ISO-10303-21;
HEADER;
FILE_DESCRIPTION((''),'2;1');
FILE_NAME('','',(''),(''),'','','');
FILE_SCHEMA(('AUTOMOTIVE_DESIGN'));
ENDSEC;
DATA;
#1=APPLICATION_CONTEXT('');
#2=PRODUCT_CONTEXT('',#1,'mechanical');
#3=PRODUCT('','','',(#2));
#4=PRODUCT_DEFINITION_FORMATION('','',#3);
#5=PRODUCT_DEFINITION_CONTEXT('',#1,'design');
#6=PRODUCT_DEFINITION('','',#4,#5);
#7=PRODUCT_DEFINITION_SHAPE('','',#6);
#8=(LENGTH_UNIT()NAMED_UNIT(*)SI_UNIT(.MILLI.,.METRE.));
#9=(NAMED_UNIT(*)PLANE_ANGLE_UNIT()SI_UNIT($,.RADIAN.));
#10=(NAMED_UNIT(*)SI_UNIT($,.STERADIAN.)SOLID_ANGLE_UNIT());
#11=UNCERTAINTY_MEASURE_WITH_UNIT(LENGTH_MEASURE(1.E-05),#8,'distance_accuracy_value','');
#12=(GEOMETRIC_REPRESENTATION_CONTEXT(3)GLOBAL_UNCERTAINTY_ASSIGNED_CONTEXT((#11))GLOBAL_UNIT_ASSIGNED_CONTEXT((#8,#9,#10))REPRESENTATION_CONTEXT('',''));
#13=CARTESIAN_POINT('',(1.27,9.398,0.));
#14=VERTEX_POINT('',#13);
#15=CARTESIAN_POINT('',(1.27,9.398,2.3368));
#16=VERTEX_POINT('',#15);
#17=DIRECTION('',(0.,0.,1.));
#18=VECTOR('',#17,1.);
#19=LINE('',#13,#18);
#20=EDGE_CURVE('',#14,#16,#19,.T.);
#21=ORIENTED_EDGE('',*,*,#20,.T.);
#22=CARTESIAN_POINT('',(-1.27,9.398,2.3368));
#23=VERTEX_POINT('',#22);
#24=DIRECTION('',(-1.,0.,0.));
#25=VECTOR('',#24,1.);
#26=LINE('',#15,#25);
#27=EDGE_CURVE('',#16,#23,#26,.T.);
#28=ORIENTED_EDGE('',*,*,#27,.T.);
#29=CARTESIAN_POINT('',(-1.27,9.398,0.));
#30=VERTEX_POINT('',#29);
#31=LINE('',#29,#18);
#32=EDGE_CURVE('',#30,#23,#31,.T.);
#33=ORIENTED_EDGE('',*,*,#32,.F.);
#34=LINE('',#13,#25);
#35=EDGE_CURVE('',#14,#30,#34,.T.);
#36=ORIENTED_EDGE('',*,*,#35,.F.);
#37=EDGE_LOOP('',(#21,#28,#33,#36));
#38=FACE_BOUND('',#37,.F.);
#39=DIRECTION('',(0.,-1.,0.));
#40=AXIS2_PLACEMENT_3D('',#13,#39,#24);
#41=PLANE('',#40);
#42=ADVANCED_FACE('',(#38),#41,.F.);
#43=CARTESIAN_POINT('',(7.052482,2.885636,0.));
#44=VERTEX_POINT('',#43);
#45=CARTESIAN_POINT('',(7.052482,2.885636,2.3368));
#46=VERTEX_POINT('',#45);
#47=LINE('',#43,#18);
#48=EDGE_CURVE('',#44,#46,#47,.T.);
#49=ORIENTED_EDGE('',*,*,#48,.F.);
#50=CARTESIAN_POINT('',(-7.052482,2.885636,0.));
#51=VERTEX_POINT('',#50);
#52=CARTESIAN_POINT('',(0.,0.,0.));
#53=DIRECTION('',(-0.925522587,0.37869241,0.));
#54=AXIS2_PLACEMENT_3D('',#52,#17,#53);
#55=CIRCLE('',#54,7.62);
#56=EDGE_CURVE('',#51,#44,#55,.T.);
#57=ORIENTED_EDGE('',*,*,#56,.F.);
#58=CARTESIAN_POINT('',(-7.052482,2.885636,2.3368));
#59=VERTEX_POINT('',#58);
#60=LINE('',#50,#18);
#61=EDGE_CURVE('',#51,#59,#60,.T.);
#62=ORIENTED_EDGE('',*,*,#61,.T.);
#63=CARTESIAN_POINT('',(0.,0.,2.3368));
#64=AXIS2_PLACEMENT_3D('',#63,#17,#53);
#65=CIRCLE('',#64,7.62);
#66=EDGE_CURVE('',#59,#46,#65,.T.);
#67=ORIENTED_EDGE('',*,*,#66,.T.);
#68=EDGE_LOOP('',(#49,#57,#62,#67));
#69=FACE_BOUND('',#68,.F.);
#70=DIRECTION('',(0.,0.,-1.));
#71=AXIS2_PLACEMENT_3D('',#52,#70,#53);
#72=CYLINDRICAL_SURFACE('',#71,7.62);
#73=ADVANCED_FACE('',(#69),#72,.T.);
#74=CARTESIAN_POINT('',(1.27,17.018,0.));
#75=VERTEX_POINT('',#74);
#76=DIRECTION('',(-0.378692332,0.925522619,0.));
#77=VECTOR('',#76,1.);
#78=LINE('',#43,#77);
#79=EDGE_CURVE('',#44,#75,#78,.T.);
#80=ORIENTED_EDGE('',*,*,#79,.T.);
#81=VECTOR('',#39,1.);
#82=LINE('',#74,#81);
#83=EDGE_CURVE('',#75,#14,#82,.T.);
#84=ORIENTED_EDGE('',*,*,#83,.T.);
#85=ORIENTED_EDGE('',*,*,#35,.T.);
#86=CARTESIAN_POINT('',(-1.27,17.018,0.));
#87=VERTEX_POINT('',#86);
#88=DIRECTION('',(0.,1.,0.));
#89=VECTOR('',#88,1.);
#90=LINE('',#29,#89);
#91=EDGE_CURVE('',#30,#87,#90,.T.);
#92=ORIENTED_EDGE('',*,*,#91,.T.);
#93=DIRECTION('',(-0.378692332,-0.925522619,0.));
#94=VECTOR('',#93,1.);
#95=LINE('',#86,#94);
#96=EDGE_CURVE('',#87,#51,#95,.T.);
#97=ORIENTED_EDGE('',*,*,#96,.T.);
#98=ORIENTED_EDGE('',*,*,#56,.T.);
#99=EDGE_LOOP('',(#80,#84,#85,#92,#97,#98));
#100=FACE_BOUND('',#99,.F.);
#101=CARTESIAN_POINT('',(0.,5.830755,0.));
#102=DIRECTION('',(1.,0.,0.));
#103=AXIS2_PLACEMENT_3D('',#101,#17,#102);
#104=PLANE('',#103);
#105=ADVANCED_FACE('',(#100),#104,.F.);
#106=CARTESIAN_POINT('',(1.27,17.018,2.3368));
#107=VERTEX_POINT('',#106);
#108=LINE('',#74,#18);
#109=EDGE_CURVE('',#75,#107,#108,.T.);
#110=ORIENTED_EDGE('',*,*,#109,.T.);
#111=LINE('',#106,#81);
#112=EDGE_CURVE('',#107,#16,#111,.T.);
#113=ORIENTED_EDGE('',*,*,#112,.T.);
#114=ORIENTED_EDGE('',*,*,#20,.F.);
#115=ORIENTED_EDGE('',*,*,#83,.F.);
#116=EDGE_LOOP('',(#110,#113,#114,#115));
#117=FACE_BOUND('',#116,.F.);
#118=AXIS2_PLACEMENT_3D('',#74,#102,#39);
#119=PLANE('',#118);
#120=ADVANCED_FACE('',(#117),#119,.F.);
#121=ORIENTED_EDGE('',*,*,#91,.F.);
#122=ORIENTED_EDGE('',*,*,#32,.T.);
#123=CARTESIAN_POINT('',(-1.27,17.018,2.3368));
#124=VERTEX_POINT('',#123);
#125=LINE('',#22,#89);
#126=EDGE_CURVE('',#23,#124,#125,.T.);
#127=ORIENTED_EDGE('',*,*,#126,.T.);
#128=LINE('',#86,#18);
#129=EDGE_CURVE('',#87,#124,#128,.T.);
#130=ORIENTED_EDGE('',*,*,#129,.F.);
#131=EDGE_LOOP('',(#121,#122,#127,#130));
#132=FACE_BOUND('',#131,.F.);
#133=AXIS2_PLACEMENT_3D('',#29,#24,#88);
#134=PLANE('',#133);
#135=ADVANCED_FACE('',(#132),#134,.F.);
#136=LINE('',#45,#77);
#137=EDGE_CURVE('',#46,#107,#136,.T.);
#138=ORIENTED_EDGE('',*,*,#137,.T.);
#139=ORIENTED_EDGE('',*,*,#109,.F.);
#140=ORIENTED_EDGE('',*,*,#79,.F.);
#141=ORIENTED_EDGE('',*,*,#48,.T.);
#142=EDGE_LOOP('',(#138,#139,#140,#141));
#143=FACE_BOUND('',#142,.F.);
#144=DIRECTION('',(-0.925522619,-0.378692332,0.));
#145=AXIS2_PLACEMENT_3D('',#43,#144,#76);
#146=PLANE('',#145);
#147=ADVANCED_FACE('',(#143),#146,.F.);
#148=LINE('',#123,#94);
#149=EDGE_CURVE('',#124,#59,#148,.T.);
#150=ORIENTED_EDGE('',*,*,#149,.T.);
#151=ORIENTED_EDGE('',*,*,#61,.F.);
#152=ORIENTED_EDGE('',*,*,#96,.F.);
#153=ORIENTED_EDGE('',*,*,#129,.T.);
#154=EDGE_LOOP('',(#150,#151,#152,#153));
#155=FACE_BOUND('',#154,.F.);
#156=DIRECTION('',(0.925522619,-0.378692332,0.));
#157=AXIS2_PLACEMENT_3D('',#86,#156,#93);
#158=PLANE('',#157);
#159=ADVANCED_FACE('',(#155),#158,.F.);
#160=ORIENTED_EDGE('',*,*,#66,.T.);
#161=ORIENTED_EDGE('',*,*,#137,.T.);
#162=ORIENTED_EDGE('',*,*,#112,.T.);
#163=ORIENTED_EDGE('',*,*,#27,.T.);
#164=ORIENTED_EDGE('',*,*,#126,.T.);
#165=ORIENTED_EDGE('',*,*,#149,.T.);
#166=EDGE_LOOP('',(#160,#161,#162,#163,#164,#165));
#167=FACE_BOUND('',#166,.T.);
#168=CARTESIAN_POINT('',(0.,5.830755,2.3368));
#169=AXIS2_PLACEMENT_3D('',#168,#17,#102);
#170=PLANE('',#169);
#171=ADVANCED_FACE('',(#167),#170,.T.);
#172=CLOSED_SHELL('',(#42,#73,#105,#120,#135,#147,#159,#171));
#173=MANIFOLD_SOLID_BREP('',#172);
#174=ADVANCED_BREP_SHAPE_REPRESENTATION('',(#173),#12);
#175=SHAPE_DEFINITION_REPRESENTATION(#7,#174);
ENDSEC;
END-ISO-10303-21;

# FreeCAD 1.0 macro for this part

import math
import FreeCAD as App
import Part
import Sketcher

V = App.Vector
Q = App.Units.Quantity

doc = App.newDocument("Part")
body = doc.addObject("PartDesign::Body", "Body")

# Sketch on XY plane
sketch1 = body.newObject("Sketcher::SketchObject", "Sketch")
sketch1.AttachmentSupport = (doc.getObject("XY_Plane"), [""])
sketch1.MapMode = "FlatFace"
sketch1.addGeometry([
    Part.LineSegment(V(-1.3, 17, 0), V(-7.1, 2.9, 0)),  # 0
    Part.ArcOfCircle(Part.Circle(V(0, 0, 0), V(0, 0, 1), 7.6), math.radians(158), math.radians(382)),  # 1
    Part.LineSegment(V(7.1, 2.9, 0), V(1.3, 17, 0)),  # 2
    Part.LineSegment(V(1.3, 17, 0), V(1.3, 9.4, 0)),  # 3
    Part.LineSegment(V(1.3, 9.4, 0), V(-1.3, 9.4, 0)),  # 4
    Part.LineSegment(V(-1.3, 9.4, 0), V(-1.3, 17, 0)),  # 5
], False)
sketch1.addConstraint([
    Sketcher.Constraint("Tangent", 0, 2, 1, 1),
    Sketcher.Constraint("Tangent", 1, 2, 2, 1),
    Sketcher.Constraint("Coincident", 2, 2, 3, 1),
    Sketcher.Constraint("Coincident", 3, 2, 4, 1),
    Sketcher.Constraint("Coincident", 4, 2, 5, 1),
    Sketcher.Constraint("Coincident", 5, 2, 0, 1),
    Sketcher.Constraint("Vertical", 3),
    Sketcher.Constraint("Horizontal", 4),
    Sketcher.Constraint("Vertical", 5),
    Sketcher.Constraint("Coincident", 1, 3, -1, 1),
    Sketcher.Constraint("Symmetric", 2, 2, 5, 2, -2),
    Sketcher.Constraint("Radius", 1, Q("0.3 in")),
    Sketcher.Constraint("DistanceX", 4, 2, 4, 1, Q("0.1 in")),
    Sketcher.Constraint("DistanceY", 3, 2, 3, 1, Q("0.3 in")),
    Sketcher.Constraint("DistanceY", -1, 1, 2, 2, Q("0.67 in")),
])
pad1 = body.newObject("PartDesign::Pad", "Pad")
pad1.Profile = sketch1
pad1.Length = Q("0.092 in")

doc.recompute()
